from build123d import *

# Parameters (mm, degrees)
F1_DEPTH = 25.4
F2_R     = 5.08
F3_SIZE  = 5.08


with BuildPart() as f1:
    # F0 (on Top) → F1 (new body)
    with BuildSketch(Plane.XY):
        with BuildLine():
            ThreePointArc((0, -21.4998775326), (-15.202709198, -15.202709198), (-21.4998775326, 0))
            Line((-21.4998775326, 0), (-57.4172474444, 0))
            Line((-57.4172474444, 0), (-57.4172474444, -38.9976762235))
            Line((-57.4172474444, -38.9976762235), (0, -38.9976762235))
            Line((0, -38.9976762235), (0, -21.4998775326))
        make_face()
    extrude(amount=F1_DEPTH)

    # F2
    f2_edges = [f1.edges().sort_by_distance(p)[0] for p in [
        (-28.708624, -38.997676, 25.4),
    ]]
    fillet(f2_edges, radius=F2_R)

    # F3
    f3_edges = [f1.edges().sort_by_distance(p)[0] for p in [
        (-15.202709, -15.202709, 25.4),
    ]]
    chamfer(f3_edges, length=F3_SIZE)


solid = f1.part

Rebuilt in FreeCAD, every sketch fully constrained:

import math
import FreeCAD as App
import Part
import Sketcher
from FreeCAD import Vector
Q = App.Units.Quantity


def edges_at(feature, points):
    """Names of the edges that pass closest to the given points."""
    edges = feature.Shape.Edges
    near = lambda p: min(range(len(edges)), key=lambda i: edges[i].distToShape(Part.Vertex(*p))[0])
    return sorted({f"Edge{near(p) + 1}" for p in points})

doc = App.newDocument("Part")
body = doc.addObject("PartDesign::Body", "Body")

# Sketch on XY plane
sketch1 = body.newObject("Sketcher::SketchObject", "Sketch")
sketch1.AttachmentSupport = (doc.getObject("XY_Plane"), [""])
sketch1.MapMode = "FlatFace"
sketch1.addGeometry(Part.ArcOfCircle(Part.Circle(Vector(0, 0, 0), Vector(0, 0, 1), 21), math.radians(180), math.radians(270)), False)
sketch1.addGeometry(Part.LineSegment(Vector(-21, 0, 0), Vector(-57, 0, 0)), False)
sketch1.addGeometry(Part.LineSegment(Vector(-57, 0, 0), Vector(-57, -39, 0)), False)
sketch1.addGeometry(Part.LineSegment(Vector(-57, -39, 0), Vector(0, -39, 0)), False)
sketch1.addGeometry(Part.LineSegment(Vector(0, -39, 0), Vector(0, -21, 0)), False)
sketch1.addConstraint(Sketcher.Constraint("Coincident", 0, 1, 1, 1))
sketch1.addConstraint(Sketcher.Constraint("Coincident", 1, 2, 2, 1))
sketch1.addConstraint(Sketcher.Constraint("Coincident", 2, 2, 3, 1))
sketch1.addConstraint(Sketcher.Constraint("Coincident", 3, 2, 4, 1))
sketch1.addConstraint(Sketcher.Constraint("Coincident", 4, 2, 0, 2))
sketch1.addConstraint(Sketcher.Constraint("Horizontal", 1))
sketch1.addConstraint(Sketcher.Constraint("Vertical", 2))
sketch1.addConstraint(Sketcher.Constraint("Horizontal", 3))
sketch1.addConstraint(Sketcher.Constraint("Vertical", 4))
sketch1.addConstraint(Sketcher.Constraint("Coincident", 0, 3, -1, 1))
sketch1.addConstraint(Sketcher.Constraint("PointOnObject", 0, 1, -1))
sketch1.addConstraint(Sketcher.Constraint("PointOnObject", 3, 2, -2))
sketch1.addConstraint(Sketcher.Constraint("DistanceY", 4, 1, 4, 2, Q("17.497799 mm")))
sketch1.addConstraint(Sketcher.Constraint("Radius", 0, Q("21.499878 mm")))
sketch1.addConstraint(Sketcher.Constraint("DistanceX", 1, 2, 1, 1, Q("35.91737 mm")))
pad1 = body.newObject("PartDesign::Pad", "Pad")
pad1.Profile = sketch1
pad1.Length = Q("1 in")
doc.recompute()

fillet = body.newObject("PartDesign::Fillet", "Fillet")
fillet.Base = (pad1, edges_at(pad1, [(-28.709, -38.998, 25.4)]))
fillet.Radius = Q("0.2 in")
doc.recompute()

chamfer = body.newObject("PartDesign::Chamfer", "Chamfer")
chamfer.Base = (fillet, edges_at(fillet, [(-15.203, -15.203, 25.4)]))
chamfer.Size = Q("0.2 in")

doc.recompute()
